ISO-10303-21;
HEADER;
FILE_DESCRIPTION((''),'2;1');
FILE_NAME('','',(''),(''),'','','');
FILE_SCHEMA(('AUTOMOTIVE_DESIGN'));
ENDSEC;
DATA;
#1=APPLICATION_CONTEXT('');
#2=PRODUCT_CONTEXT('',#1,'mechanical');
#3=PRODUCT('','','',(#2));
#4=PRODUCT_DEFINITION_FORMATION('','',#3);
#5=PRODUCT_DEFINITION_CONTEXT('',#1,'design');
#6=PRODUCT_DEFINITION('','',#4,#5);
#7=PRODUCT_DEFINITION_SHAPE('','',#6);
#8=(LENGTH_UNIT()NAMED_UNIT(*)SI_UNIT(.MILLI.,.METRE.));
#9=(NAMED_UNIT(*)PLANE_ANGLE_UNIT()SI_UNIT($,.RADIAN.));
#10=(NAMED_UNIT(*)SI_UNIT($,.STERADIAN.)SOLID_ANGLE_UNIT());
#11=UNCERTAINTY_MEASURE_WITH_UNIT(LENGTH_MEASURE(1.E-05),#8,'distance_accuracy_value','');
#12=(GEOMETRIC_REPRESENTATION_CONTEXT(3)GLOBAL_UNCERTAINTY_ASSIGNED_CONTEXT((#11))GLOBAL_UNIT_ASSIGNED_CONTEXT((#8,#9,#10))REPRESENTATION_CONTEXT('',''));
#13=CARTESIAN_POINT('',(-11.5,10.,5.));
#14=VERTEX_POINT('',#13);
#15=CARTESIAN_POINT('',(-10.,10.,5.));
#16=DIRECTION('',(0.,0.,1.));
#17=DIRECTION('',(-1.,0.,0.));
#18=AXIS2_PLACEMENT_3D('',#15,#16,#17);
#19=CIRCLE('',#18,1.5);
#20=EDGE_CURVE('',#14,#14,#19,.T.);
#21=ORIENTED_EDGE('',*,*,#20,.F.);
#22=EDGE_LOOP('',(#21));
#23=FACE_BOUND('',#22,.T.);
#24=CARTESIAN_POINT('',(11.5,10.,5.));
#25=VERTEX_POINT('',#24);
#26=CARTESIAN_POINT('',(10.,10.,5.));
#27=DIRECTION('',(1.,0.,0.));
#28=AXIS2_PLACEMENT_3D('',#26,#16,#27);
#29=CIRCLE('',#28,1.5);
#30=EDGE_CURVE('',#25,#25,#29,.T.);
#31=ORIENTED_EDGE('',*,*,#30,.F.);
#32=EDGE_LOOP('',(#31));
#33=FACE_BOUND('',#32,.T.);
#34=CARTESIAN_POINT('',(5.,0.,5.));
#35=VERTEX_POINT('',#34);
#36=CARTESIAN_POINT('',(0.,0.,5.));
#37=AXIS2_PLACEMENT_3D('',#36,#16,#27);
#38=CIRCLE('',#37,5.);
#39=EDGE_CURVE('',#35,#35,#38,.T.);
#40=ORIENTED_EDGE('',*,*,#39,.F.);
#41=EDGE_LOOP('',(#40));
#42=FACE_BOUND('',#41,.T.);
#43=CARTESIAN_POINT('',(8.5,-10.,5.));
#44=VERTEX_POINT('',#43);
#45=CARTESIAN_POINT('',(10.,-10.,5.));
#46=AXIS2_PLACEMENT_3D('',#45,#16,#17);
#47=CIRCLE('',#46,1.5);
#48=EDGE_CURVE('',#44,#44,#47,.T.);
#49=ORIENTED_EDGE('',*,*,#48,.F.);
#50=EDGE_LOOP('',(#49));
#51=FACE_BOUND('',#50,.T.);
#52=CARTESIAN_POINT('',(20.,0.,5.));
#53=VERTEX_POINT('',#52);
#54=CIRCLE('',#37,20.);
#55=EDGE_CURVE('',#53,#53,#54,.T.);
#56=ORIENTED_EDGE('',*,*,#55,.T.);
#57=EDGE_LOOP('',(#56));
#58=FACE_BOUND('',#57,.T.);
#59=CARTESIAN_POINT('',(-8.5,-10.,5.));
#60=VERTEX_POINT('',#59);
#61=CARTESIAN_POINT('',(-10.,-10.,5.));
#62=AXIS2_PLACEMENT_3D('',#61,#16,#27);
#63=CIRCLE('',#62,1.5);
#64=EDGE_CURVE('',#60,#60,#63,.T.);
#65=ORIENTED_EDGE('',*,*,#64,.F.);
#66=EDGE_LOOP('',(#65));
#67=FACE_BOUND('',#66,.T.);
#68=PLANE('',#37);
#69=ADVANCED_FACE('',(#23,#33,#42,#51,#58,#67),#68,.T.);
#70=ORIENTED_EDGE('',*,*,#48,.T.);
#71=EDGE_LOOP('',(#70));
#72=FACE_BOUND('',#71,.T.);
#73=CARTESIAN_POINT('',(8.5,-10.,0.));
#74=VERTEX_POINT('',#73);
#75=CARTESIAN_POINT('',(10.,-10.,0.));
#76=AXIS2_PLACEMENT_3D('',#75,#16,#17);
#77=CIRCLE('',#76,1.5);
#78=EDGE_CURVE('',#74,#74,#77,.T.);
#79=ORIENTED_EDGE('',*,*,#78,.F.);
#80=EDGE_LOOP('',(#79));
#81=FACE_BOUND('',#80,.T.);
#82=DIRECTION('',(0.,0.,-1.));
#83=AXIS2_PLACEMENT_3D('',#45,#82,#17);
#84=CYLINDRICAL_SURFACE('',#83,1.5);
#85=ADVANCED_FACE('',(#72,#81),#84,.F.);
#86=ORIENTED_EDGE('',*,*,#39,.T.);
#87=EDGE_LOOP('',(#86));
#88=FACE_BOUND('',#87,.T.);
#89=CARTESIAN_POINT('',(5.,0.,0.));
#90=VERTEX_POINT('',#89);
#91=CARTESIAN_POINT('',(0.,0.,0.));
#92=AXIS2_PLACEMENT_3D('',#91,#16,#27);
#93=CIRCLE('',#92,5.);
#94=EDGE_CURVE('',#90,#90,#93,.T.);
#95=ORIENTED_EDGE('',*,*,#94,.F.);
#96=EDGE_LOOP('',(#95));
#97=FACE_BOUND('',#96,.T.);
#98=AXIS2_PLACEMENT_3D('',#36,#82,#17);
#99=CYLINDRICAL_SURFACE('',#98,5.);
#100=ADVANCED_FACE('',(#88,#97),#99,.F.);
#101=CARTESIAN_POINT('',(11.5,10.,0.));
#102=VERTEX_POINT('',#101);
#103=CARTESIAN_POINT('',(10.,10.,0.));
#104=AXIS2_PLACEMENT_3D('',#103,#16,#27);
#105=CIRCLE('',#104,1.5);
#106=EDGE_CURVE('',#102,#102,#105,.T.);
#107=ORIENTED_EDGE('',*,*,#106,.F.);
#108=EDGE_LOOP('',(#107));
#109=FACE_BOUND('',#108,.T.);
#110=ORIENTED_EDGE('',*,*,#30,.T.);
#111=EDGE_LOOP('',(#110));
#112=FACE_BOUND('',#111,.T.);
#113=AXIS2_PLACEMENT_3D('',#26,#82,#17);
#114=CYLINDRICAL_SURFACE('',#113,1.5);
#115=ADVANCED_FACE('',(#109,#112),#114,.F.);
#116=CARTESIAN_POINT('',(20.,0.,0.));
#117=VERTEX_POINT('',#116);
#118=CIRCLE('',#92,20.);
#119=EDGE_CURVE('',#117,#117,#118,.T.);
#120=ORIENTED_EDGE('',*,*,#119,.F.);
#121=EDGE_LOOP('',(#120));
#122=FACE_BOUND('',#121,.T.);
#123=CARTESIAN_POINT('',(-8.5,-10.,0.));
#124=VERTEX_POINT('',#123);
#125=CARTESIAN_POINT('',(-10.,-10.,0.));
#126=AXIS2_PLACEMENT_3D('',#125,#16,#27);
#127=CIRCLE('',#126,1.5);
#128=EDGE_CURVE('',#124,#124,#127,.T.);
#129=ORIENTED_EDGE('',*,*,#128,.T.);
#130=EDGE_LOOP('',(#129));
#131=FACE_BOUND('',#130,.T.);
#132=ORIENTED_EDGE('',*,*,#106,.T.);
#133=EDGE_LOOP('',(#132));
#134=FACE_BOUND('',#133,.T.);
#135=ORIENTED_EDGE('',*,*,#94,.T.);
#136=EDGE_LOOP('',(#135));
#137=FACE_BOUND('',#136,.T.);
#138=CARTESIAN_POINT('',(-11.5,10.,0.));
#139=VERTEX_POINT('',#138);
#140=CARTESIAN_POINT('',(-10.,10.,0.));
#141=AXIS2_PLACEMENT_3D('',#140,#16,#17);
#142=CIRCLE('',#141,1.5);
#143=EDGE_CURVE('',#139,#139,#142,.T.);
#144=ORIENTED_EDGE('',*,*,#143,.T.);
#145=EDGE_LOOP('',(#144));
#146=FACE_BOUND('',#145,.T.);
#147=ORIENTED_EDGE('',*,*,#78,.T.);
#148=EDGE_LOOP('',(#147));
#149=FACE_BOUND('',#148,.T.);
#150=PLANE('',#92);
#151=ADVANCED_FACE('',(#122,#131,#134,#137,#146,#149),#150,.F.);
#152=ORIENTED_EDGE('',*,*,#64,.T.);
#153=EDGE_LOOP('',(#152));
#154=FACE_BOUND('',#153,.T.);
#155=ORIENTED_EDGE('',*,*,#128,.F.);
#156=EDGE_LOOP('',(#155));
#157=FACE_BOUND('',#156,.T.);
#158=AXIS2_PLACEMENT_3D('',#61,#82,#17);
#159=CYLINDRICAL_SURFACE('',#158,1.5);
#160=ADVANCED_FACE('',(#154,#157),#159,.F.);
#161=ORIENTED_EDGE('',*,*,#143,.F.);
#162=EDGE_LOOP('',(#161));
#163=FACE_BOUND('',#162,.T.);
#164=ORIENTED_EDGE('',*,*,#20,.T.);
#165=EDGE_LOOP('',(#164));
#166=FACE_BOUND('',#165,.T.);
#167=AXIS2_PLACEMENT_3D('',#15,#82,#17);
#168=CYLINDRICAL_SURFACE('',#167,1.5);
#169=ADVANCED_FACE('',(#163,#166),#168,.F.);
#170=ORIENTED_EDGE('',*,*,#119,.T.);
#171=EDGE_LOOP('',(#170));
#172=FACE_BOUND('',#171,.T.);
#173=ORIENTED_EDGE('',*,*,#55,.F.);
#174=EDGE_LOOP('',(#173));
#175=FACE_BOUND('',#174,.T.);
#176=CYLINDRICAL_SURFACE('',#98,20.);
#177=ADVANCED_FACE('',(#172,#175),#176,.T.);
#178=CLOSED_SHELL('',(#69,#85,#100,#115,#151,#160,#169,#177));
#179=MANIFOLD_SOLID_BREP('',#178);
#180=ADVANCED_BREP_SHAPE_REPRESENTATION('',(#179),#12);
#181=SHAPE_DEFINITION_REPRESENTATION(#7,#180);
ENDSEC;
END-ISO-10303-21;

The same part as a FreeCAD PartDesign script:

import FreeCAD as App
import Part
import Sketcher

doc = App.newDocument("Part")
params = doc.addObject("Spreadsheet::Sheet", "Params")
for row, (alias, value) in enumerate([
    ("sketch1_diameter", "40 mm"),
    ("sketch1_diameter2", "3 mm"),
    ("sketch1_diameter3", "10 mm"),
    ("pad1_length", "5 mm"),
], start=1):
    params.set(f"A{row}", alias)
    params.set(f"B{row}", "=" + value)
    params.setAlias(f"B{row}", alias)

body = doc.addObject("PartDesign::Body", "Body")

# Sketch on XY plane
sketch1 = body.newObject("Sketcher::SketchObject", "Sketch")
sketch1.AttachmentSupport = (doc.getObject("XY_Plane"), [""])
sketch1.MapMode = "FlatFace"
sketch1.addGeometry(Part.Circle(App.Vector(0, 0, 0), App.Vector(0, 0, 1), 20), False)
sketch1.addGeometry(Part.Circle(App.Vector(-10, -10, 0), App.Vector(0, 0, 1), 1.5), False)
sketch1.addGeometry(Part.Circle(App.Vector(10, -10, 0), App.Vector(0, 0, 1), 1.5), False)
sketch1.addGeometry(Part.Circle(App.Vector(-10, 10, 0), App.Vector(0, 0, 1), 1.5), False)
sketch1.addGeometry(Part.Circle(App.Vector(0, 0, 0), App.Vector(0, 0, 1), 5), False)
sketch1.addGeometry(Part.Circle(App.Vector(10, 10, 0), App.Vector(0, 0, 1), 1.5), False)
sketch1.addConstraint(Sketcher.Constraint("Coincident", 0, 3, -1, 1))
sketch1.addConstraint(Sketcher.Constraint("Coincident", 4, 3, -1, 1))
sketch1.addConstraint(Sketcher.Constraint("Equal", 1, 2))
sketch1.addConstraint(Sketcher.Constraint("Equal", 2, 3))
sketch1.addConstraint(Sketcher.Constraint("Equal", 3, 5))
sketch1.addConstraint(Sketcher.Constraint("Symmetric", 2, 3, 3, 3, -1, 1))
sketch1.addConstraint(Sketcher.Constraint("Symmetric", 1, 3, 5, 3, -1, 1))
sketch1.addConstraint(Sketcher.Constraint("Symmetric", 1, 3, 2, 3, -2))
sketch1.addConstraint(Sketcher.Constraint("Diameter", 0, 40.0))
sketch1.addConstraint(Sketcher.Constraint("Diameter", 1, 3.0))
sketch1.addConstraint(Sketcher.Constraint("Diameter", 4, 10.0))
sketch1.addConstraint(Sketcher.Constraint("DistanceX", 1, 3, -1, 1, 10.0))
sketch1.addConstraint(Sketcher.Constraint("DistanceY", 1, 3, -1, 1, 10.0))
sketch1.setExpression("Constraints[8]", "Params.sketch1_diameter")
sketch1.setExpression("Constraints[9]", "Params.sketch1_diameter2")
sketch1.setExpression("Constraints[10]", "Params.sketch1_diameter3")
pad1 = body.newObject("PartDesign::Pad", "Pad")
pad1.Profile = sketch1
pad1.setExpression("Length", "Params.pad1_length")

doc.recompute()
